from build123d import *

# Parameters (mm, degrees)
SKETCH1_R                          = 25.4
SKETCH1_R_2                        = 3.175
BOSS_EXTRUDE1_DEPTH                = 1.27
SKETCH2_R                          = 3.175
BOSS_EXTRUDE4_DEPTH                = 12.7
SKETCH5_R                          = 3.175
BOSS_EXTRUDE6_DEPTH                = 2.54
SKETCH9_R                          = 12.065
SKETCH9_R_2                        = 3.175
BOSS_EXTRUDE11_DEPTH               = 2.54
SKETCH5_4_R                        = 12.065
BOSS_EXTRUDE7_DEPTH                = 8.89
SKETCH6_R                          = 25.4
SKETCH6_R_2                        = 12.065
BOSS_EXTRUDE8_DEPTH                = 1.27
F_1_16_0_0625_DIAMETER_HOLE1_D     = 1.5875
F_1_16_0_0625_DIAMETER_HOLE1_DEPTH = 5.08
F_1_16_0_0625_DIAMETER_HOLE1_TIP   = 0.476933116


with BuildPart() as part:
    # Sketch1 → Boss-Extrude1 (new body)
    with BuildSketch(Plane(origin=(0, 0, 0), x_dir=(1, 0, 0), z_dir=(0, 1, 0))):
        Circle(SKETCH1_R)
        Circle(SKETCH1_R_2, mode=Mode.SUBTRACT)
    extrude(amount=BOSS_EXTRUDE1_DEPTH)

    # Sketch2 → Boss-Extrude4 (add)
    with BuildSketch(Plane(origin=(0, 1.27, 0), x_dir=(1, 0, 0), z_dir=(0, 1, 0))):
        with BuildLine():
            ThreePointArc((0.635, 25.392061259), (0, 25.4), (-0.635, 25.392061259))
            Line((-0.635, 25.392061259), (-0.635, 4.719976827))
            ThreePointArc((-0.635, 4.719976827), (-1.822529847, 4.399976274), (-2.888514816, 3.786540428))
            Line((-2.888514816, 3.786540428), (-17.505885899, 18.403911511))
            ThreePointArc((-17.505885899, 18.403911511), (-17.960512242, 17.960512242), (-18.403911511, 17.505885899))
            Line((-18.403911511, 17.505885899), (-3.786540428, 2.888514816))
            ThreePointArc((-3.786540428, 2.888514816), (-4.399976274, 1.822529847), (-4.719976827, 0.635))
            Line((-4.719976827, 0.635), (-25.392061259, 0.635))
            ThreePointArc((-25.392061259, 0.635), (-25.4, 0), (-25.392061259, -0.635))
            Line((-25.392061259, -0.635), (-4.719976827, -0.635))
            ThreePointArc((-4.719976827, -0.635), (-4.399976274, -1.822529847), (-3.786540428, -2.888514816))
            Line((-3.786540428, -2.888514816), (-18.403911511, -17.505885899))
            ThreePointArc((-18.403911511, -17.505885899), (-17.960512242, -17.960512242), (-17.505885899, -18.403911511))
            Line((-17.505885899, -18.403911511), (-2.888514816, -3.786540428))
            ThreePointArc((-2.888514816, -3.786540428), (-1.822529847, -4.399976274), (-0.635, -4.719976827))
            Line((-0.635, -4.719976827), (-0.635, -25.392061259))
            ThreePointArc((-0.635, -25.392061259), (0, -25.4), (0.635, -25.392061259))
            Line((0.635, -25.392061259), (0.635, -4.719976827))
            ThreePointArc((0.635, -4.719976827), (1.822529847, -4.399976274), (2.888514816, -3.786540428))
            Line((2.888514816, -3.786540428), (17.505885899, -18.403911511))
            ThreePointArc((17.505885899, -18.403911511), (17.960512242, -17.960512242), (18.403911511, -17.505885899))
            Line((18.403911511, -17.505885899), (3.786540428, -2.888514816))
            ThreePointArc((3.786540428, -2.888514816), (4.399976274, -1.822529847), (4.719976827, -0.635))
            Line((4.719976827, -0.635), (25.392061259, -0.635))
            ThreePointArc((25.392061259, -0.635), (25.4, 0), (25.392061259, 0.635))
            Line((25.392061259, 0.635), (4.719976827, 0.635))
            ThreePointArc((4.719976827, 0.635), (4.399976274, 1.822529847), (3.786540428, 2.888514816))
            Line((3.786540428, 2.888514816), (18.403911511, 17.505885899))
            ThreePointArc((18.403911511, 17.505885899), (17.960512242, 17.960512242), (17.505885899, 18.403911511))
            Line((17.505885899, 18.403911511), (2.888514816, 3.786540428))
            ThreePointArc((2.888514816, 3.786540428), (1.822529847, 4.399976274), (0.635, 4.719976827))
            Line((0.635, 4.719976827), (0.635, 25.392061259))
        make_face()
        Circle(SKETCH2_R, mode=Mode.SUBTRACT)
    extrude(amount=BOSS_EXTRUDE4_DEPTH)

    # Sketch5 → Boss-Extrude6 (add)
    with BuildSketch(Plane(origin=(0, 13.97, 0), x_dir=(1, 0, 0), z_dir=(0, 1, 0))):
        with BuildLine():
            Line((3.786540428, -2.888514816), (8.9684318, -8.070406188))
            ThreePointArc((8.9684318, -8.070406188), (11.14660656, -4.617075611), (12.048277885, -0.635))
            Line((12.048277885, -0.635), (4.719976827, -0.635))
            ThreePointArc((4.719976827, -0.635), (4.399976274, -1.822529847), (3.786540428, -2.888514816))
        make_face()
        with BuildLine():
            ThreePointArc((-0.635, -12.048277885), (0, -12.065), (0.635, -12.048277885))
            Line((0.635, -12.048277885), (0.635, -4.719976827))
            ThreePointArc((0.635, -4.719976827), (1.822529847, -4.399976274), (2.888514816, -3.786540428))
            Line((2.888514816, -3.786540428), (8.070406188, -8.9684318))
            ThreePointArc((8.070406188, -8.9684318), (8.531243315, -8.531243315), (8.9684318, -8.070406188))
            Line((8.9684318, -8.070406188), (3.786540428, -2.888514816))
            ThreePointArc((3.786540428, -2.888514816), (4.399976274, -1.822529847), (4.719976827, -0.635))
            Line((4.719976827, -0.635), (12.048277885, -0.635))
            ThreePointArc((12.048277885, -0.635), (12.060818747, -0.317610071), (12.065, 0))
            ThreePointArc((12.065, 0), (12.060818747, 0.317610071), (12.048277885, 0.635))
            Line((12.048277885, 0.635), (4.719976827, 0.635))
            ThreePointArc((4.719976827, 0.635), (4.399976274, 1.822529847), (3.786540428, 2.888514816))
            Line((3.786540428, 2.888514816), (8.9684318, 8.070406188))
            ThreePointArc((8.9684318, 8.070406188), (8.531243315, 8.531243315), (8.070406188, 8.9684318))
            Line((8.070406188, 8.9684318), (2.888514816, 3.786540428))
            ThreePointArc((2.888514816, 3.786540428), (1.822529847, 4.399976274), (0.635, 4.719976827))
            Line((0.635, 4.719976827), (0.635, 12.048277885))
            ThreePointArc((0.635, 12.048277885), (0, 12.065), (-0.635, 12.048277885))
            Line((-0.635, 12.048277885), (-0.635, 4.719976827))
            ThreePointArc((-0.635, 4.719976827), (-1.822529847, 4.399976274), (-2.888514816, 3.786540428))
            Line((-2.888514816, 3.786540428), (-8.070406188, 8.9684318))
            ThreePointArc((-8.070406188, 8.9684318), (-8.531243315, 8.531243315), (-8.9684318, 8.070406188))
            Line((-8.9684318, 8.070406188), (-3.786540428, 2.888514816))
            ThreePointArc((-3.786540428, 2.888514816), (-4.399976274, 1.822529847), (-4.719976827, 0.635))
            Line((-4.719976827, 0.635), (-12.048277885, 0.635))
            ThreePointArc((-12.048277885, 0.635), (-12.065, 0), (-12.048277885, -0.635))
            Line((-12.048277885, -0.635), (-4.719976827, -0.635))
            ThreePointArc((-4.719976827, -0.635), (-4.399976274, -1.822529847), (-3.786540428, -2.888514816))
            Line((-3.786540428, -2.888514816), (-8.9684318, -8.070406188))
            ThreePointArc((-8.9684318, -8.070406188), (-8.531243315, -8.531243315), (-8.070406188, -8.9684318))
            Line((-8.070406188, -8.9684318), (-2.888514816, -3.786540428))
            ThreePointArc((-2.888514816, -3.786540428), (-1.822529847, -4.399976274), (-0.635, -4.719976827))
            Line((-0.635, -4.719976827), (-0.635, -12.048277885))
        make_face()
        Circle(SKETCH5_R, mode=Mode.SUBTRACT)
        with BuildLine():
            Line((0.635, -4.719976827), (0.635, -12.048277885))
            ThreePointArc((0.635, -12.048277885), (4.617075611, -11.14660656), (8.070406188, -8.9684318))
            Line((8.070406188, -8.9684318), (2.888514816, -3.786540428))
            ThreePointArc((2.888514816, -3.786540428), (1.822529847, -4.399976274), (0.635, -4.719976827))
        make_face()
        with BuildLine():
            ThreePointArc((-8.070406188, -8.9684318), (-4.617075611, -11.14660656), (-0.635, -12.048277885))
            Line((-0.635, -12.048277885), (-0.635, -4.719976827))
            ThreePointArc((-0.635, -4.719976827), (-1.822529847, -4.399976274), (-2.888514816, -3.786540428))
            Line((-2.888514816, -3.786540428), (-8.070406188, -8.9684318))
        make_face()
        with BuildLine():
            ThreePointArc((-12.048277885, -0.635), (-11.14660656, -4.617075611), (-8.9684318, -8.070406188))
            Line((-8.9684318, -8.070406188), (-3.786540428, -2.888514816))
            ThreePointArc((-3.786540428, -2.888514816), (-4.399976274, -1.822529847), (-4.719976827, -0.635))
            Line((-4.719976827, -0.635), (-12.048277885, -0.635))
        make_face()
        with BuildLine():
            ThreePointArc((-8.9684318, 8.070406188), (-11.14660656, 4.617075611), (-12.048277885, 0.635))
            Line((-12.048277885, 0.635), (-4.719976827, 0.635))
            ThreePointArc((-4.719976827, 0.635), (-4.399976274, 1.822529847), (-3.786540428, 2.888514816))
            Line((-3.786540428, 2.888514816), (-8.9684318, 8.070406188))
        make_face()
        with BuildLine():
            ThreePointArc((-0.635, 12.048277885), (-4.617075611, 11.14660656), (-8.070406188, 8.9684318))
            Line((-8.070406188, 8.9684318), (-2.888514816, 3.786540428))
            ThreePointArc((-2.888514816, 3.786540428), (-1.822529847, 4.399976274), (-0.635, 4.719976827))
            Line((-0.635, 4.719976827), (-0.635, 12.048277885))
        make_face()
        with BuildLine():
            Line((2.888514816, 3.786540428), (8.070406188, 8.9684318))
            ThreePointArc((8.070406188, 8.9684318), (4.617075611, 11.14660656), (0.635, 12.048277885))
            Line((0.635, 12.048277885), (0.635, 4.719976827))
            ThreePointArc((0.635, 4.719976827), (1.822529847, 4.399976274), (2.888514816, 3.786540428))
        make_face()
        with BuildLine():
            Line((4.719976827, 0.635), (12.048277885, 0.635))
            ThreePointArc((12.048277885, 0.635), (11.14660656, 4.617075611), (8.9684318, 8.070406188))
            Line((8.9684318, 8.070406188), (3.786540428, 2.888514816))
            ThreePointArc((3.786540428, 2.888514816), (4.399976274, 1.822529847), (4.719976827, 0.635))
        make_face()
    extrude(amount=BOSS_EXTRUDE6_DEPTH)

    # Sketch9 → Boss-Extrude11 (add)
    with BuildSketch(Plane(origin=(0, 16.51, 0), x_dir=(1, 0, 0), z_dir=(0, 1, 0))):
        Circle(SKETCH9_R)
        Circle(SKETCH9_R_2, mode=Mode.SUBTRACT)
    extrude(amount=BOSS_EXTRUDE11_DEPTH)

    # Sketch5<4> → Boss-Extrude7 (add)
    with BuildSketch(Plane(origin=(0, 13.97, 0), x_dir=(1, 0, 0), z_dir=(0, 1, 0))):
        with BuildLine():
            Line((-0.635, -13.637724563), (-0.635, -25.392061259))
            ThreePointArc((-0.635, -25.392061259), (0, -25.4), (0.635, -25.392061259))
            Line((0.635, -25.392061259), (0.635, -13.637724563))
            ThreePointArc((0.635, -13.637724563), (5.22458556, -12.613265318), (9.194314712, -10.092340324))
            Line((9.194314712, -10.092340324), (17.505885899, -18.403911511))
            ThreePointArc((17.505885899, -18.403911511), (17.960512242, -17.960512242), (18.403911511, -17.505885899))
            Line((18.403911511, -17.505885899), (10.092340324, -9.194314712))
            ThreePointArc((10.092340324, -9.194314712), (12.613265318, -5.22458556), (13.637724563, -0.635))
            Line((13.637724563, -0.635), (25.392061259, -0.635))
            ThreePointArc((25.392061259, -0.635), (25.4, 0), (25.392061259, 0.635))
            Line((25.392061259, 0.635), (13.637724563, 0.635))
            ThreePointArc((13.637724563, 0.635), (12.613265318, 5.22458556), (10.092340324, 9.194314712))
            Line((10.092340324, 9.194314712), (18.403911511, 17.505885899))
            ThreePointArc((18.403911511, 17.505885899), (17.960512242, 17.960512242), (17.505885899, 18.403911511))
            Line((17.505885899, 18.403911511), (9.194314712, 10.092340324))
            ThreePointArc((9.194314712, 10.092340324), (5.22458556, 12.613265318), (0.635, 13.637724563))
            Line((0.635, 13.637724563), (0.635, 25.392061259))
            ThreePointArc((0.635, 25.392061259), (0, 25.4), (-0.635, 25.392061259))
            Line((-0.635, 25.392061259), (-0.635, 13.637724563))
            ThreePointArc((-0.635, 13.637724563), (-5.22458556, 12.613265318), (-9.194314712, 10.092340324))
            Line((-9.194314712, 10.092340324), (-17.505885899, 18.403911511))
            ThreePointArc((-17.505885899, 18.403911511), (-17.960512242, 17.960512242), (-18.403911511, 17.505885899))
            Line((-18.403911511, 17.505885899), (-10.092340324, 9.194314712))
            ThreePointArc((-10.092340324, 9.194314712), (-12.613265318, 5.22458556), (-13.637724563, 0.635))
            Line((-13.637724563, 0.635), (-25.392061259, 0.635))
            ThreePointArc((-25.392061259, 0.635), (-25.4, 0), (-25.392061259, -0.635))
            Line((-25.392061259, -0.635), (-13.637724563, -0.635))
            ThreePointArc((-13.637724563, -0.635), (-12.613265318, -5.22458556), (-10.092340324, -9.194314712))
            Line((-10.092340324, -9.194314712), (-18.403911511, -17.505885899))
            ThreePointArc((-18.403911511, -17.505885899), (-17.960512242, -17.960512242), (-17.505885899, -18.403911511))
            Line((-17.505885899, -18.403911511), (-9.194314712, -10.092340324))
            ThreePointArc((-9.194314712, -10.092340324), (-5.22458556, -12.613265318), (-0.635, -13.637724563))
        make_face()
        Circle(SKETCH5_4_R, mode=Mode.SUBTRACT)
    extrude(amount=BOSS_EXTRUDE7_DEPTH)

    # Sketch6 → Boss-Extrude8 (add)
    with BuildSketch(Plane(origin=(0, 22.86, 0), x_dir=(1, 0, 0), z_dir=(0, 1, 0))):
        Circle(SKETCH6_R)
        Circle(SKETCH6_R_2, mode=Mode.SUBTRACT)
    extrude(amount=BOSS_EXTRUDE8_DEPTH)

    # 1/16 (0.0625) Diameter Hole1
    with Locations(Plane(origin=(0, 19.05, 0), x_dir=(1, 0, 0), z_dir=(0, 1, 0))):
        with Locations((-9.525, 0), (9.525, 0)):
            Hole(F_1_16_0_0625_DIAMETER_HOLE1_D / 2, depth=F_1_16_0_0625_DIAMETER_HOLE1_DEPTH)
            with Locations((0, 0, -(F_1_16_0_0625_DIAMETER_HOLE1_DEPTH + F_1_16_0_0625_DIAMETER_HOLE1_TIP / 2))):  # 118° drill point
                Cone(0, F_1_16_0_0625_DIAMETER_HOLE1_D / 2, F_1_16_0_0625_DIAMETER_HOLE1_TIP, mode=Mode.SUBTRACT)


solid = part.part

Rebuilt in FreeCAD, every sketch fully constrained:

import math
import FreeCAD as App
import Part
import Sketcher

V = App.Vector
Q = App.Units.Quantity

doc = App.newDocument("Part")
params = doc.addObject("Spreadsheet::Sheet", "Params")
for row, (alias, value) in enumerate([
    ("sketch1_diameter", "2 in"),
    ("sketch1_diameter2", "0.25 in"),
    ("pad1_length", "0.05 in"),
    ("sketch2_radius", "1 in"),
    ("sketch2_radius2", "1.0000001 in"),
    ("sketch2_diameter", "0.25 in"),
    ("sketch2_radius3", "0.1875 in"),
    ("pad2_length", "0.5 in"),
    ("sketch3_diameter", "0.25 in"),
    ("sketch3_radius", "0.475 in"),
    ("pad3_length", "0.1 in"),
    ("sketch4_diameter", "0.95 in"),
    ("sketch4_diameter2", "0.25 in"),
    ("pad4_length", "0.1 in"),
    ("sketch5_radius", "1 in"),
    ("sketch5_radius2", "1.0000001 in"),
    ("sketch5_diameter", "0.95 in"),
    ("pad5_length", "0.35 in"),
    ("sketch6_diameter", "2 in"),
    ("sketch6_diameter2", "0.95 in"),
    ("pad6_length", "0.05 in"),
    ("sketch7_diameter", "0.0625 in"),
    ("hole_diameter", "0.0625 in"),
    ("hole_depth", "0.2 in"),
], start=1):
    params.set(f"A{row}", alias)
    params.set(f"B{row}", "=" + value)
    params.setAlias(f"B{row}", alias)

body = doc.addObject("PartDesign::Body", "Body")

# Sketch on XZ plane
sketch1 = body.newObject("Sketcher::SketchObject", "Sketch")
sketch1.AttachmentSupport = (doc.getObject("XZ_Plane"), [""])
sketch1.MapMode = "FlatFace"
sketch1.addGeometry([
    Part.Circle(V(0, 0, 0), V(0, 0, 1), 25.4),
    Part.Circle(V(0, 0, 0), V(0, 0, 1), 3.175),
], False)
sketch1.addConstraint([
    Sketcher.Constraint("Coincident", 0, 3, -1, 1),
    Sketcher.Constraint("Coincident", 1, 3, -1, 1),
    Sketcher.Constraint("Diameter", 0, Q("2 in")),
    Sketcher.Constraint("Diameter", 1, Q("0.25 in")),
])
sketch1.setExpression("Constraints[2]", "Params.sketch1_diameter")
sketch1.setExpression("Constraints[3]", "Params.sketch1_diameter2")
pad1 = body.newObject("PartDesign::Pad", "Pad")
pad1.Profile = sketch1
pad1.setExpression("Length", "Params.pad1_length")
pad1.Reversed = True

# Sketch on XZ plane
sketch2 = body.newObject("Sketcher::SketchObject", "Sketch001")
sketch2.AttachmentSupport = (doc.getObject("XZ_Plane"), [""])
sketch2.MapMode = "FlatFace"
sketch2.AttachmentOffset = App.Placement(V(0, 0, -0.05 * 25.4), App.Rotation())
sketch2.addGeometry([
    Part.ArcOfCircle(Part.Circle(V(0, -0.000001, 0), V(0, 0, 1), 25.399999), math.radians(-91.432544), math.radians(-88.567456)),  # 0
    Part.LineSegment(V(-0.635, -25.392061, 0), V(-0.635, -4.719977, 0)),  # 1
    Part.ArcOfCircle(Part.Circle(V(0, 0, 0), V(0, 0, 1), 4.7625), math.radians(-127.337744), math.radians(-97.662256)),  # 2
    Part.LineSegment(V(-2.888515, -3.78654, 0), V(-17.505886, -18.403912, 0)),  # 3
    Part.ArcOfCircle(Part.Circle(V(0.000001, 0.000001, 0), V(0, 0, 1), 25.400001), math.radians(-136.432544), math.radians(-133.567456)),  # 4
    Part.LineSegment(V(-18.403912, -17.505886, 0), V(-3.78654, -2.888515, 0)),  # 5
    Part.ArcOfCircle(Part.Circle(V(0, 0, 0), V(0, 0, 1), 4.7625), math.radians(-172.337744), math.radians(-142.662256)),  # 6
    Part.LineSegment(V(-4.719977, -0.635, 0), V(-25.392061, -0.635, 0)),  # 7
    Part.ArcOfCircle(Part.Circle(V(-0.000001, 0, 0), V(0, 0, 1), 25.399999), math.radians(178.567456), math.radians(181.432544)),  # 8
    Part.LineSegment(V(-25.392061, 0.635, 0), V(-4.719977, 0.635, 0)),  # 9
    Part.ArcOfCircle(Part.Circle(V(0, 0, 0), V(0, 0, 1), 4.7625), math.radians(142.662256), math.radians(172.337744)),  # 10
    Part.LineSegment(V(-3.78654, 2.888515, 0), V(-18.403912, 17.505886, 0)),  # 11
    Part.ArcOfCircle(Part.Circle(V(0.000001, -0.000001, 0), V(0, 0, 1), 25.400001), math.radians(133.567456), math.radians(136.432544)),  # 12
    Part.LineSegment(V(-17.505886, 18.403912, 0), V(-2.888515, 3.78654, 0)),  # 13
    Part.ArcOfCircle(Part.Circle(V(0, 0, 0), V(0, 0, 1), 4.7625), math.radians(97.662256), math.radians(127.337744)),  # 14
    Part.LineSegment(V(-0.635, 4.719977, 0), V(-0.635, 25.392061, 0)),  # 15
    Part.ArcOfCircle(Part.Circle(V(0, 0.000001, 0), V(0, 0, 1), 25.399999), math.radians(88.567456), math.radians(91.432544)),  # 16
    Part.LineSegment(V(0.635, 25.392061, 0), V(0.635, 4.719977, 0)),  # 17
    Part.ArcOfCircle(Part.Circle(V(0, 0, 0), V(0, 0, 1), 4.7625), math.radians(52.662256), math.radians(82.337744)),  # 18
    Part.LineSegment(V(2.888515, 3.78654, 0), V(17.505886, 18.403912, 0)),  # 19
    Part.ArcOfCircle(Part.Circle(V(-0.000001, -0.000001, 0), V(0, 0, 1), 25.400001), math.radians(43.567456), math.radians(46.432544)),  # 20
    Part.LineSegment(V(18.403912, 17.505886, 0), V(3.78654, 2.888515, 0)),  # 21
    Part.ArcOfCircle(Part.Circle(V(0, 0, 0), V(0, 0, 1), 4.7625), math.radians(7.662256), math.radians(37.337744)),  # 22
    Part.LineSegment(V(4.719977, 0.635, 0), V(25.392061, 0.635, 0)),  # 23
    Part.ArcOfCircle(Part.Circle(V(0.000001, 0, 0), V(0, 0, 1), 25.399999), math.radians(-1.432544), math.radians(1.432544)),  # 24
    Part.LineSegment(V(25.392061, -0.635, 0), V(4.719977, -0.635, 0)),  # 25
    Part.ArcOfCircle(Part.Circle(V(0, 0, 0), V(0, 0, 1), 4.7625), math.radians(-37.337744), math.radians(-7.662256)),  # 26
    Part.LineSegment(V(3.78654, -2.888515, 0), V(18.403912, -17.505886, 0)),  # 27
    Part.ArcOfCircle(Part.Circle(V(-0.000001, 0.000001, 0), V(0, 0, 1), 25.400001), math.radians(-46.432544), math.radians(-43.567456)),  # 28
    Part.LineSegment(V(17.505886, -18.403912, 0), V(2.888515, -3.78654, 0)),  # 29
    Part.ArcOfCircle(Part.Circle(V(0, 0, 0), V(0, 0, 1), 4.7625), math.radians(-82.337744), math.radians(-52.662256)),  # 30
    Part.LineSegment(V(0.635, -4.719977, 0), V(0.635, -25.392061, 0)),  # 31
    Part.Circle(V(0, 0, 0), V(0, 0, 1), 3.175),  # 32
], False)
sketch2.addConstraint([
    Sketcher.Constraint("Coincident", 0, 1, 1, 1),
    Sketcher.Constraint("Coincident", 1, 2, 2, 2),
    Sketcher.Constraint("Coincident", 2, 1, 3, 1),
    Sketcher.Constraint("Coincident", 3, 2, 4, 2),
    Sketcher.Constraint("Coincident", 4, 1, 5, 1),
    Sketcher.Constraint("Coincident", 5, 2, 6, 2),
    Sketcher.Constraint("Coincident", 6, 1, 7, 1),
    Sketcher.Constraint("Coincident", 7, 2, 8, 2),
    Sketcher.Constraint("Coincident", 8, 1, 9, 1),
    Sketcher.Constraint("Coincident", 9, 2, 10, 2),
    Sketcher.Constraint("Coincident", 10, 1, 11, 1),
    Sketcher.Constraint("Coincident", 11, 2, 12, 2),
    Sketcher.Constraint("Coincident", 12, 1, 13, 1),
    Sketcher.Constraint("Coincident", 13, 2, 14, 2),
    Sketcher.Constraint("Coincident", 14, 1, 15, 1),
    Sketcher.Constraint("Coincident", 15, 2, 16, 2),
    Sketcher.Constraint("Coincident", 16, 1, 17, 1),
    Sketcher.Constraint("Coincident", 17, 2, 18, 2),
    Sketcher.Constraint("Coincident", 18, 1, 19, 1),
    Sketcher.Constraint("Coincident", 19, 2, 20, 2),
    Sketcher.Constraint("Coincident", 20, 1, 21, 1),
    Sketcher.Constraint("Coincident", 21, 2, 22, 2),
    Sketcher.Constraint("Coincident", 22, 1, 23, 1),
    Sketcher.Constraint("Coincident", 23, 2, 24, 2),
    Sketcher.Constraint("Coincident", 24, 1, 25, 1),
    Sketcher.Constraint("Coincident", 25, 2, 26, 2),
    Sketcher.Constraint("Coincident", 26, 1, 27, 1),
    Sketcher.Constraint("Coincident", 27, 2, 28, 2),
    Sketcher.Constraint("Coincident", 28, 1, 29, 1),
    Sketcher.Constraint("Coincident", 29, 2, 30, 2),
    Sketcher.Constraint("Coincident", 30, 1, 31, 1),
    Sketcher.Constraint("Coincident", 31, 2, 0, 2),
    Sketcher.Constraint("Vertical", 1),
    Sketcher.Constraint("Horizontal", 7),
    Sketcher.Constraint("Horizontal", 9),
    Sketcher.Constraint("Vertical", 15),
    Sketcher.Constraint("Vertical", 17),
    Sketcher.Constraint("Horizontal", 23),
    Sketcher.Constraint("Horizontal", 25),
    Sketcher.Constraint("Vertical", 31),
    Sketcher.Constraint("Coincident", 0, 3, -1, 1),
    Sketcher.Constraint("Coincident", 2, 3, -1, 1),
    Sketcher.Constraint("Coincident", 4, 3, -1, 1),
    Sketcher.Constraint("Coincident", 6, 3, -1, 1),
    Sketcher.Constraint("Coincident", 8, 3, -1, 1),
    Sketcher.Constraint("Coincident", 10, 3, -1, 1),
    Sketcher.Constraint("Coincident", 12, 3, -1, 1),
    Sketcher.Constraint("Coincident", 14, 3, -1, 1),
    Sketcher.Constraint("Coincident", 16, 3, -1, 1),
    Sketcher.Constraint("Coincident", 18, 3, -1, 1),
    Sketcher.Constraint("Coincident", 20, 3, -1, 1),
    Sketcher.Constraint("Coincident", 22, 3, -1, 1),
    Sketcher.Constraint("Coincident", 24, 3, -1, 1),
    Sketcher.Constraint("Coincident", 26, 3, -1, 1),
    Sketcher.Constraint("Coincident", 28, 3, -1, 1),
    Sketcher.Constraint("Coincident", 30, 3, -1, 1),
    Sketcher.Constraint("Coincident", 32, 3, -1, 1),
    Sketcher.Constraint("Equal", 2, 6),
    Sketcher.Constraint("Equal", 0, 8),
    Sketcher.Constraint("Equal", 6, 10),
    Sketcher.Constraint("Equal", 4, 12),
    Sketcher.Constraint("Equal", 10, 14),
    Sketcher.Constraint("Equal", 8, 16),
    Sketcher.Constraint("Equal", 14, 18),
    Sketcher.Constraint("Equal", 12, 20),
    Sketcher.Constraint("Equal", 18, 22),
    Sketcher.Constraint("Equal", 16, 24),
    Sketcher.Constraint("Equal", 22, 26),
    Sketcher.Constraint("Equal", 20, 28),
    Sketcher.Constraint("Equal", 26, 30),
    Sketcher.Constraint("Parallel", 3, 5),
    Sketcher.Constraint("Perpendicular", 5, 11),
    Sketcher.Constraint("Parallel", 11, 13),
    Sketcher.Constraint("Perpendicular", 13, 19),
    Sketcher.Constraint("Parallel", 19, 21),
    Sketcher.Constraint("Perpendicular", 21, 27),
    Sketcher.Constraint("Parallel", 27, 29),
    Sketcher.Constraint("Horizontal", 15, 2, 16, 1),
    Sketcher.Constraint("Horizontal", 13, 2, 18, 1),
    Sketcher.Constraint("Horizontal", 12, 1, 19, 2),
    Sketcher.Constraint("Horizontal", 11, 2, 20, 1),
    Sketcher.Constraint("Horizontal", 9, 2, 22, 1),
    Sketcher.Constraint("Horizontal", 7, 2, 24, 1),
    Sketcher.Constraint("Horizontal", 5, 2, 26, 1),
    Sketcher.Constraint("Horizontal", 3, 2, 28, 1),
    Sketcher.Constraint("Horizontal", 1, 2, 30, 1),
    Sketcher.Constraint("Vertical", 7, 2, 8, 1),
    Sketcher.Constraint("Vertical", 5, 2, 10, 1),
    Sketcher.Constraint("Vertical", 3, 2, 12, 1),
    Sketcher.Constraint("Vertical", 1, 2, 14, 1),
    Sketcher.Constraint("Equal", 25, 1),
    Sketcher.Constraint("Equal", 3, 5),
    Sketcher.Constraint("Radius", 0, Q("1 in")),
    Sketcher.Constraint("Radius", 4, Q("1.0000001 in")),
    Sketcher.Constraint("Diameter", 32, Q("0.25 in")),
    Sketcher.Constraint("Radius", 2, Q("0.1875 in")),
    Sketcher.Constraint("DistanceY", 7, 2, 8, 1, Q("0.05 in")),
    Sketcher.Constraint("DistanceY", 2, 1, -1, 1, 3.78654),
])
sketch2.setExpression("Constraints[92]", "Params.sketch2_radius")
sketch2.setExpression("Constraints[93]", "Params.sketch2_radius2")
sketch2.setExpression("Constraints[94]", "Params.sketch2_diameter")
sketch2.setExpression("Constraints[95]", "Params.sketch2_radius3")
pad2 = body.newObject("PartDesign::Pad", "Pad001")
pad2.Profile = sketch2
pad2.setExpression("Length", "Params.pad2_length")
pad2.Reversed = True

# Sketch on XZ plane
sketch3 = body.newObject("Sketcher::SketchObject", "Sketch002")
sketch3.AttachmentSupport = (doc.getObject("XZ_Plane"), [""])
sketch3.MapMode = "FlatFace"
sketch3.AttachmentOffset = App.Placement(V(0, 0, -0.55 * 25.4), App.Rotation())
sketch3.addGeometry([
    Part.ArcOfCircle(Part.Circle(V(0, 0, 0), V(0, 0, 1), 12.065), math.radians(3.016961), math.radians(41.983039)),  # 0
    Part.ArcOfCircle(Part.Circle(V(0.000001, 0, 0), V(0, 0, 1), 12.064999), math.radians(0), math.radians(3.016961)),  # 1
    Part.ArcOfCircle(Part.Circle(V(0.000001, 0, 0), V(0, 0, 1), 12.064999), math.radians(-3.016961), math.radians(0)),  # 2
    Part.ArcOfCircle(Part.Circle(V(0, 0, 0), V(0, 0, 1), 12.065), math.radians(-41.983039), math.radians(-3.016961)),  # 3
    Part.ArcOfCircle(Part.Circle(V(0, 0, 0), V(0, 0, 1), 12.065), math.radians(-48.016961), math.radians(-41.983039)),  # 4
    Part.ArcOfCircle(Part.Circle(V(0, 0, 0), V(0, 0, 1), 12.065), math.radians(-86.983039), math.radians(-48.016961)),  # 5
    Part.ArcOfCircle(Part.Circle(V(0, 0, 0), V(0, 0, 1), 12.065), math.radians(-93.016961), math.radians(-86.983039)),  # 6
    Part.ArcOfCircle(Part.Circle(V(0, 0, 0), V(0, 0, 1), 12.065), math.radians(-131.983039), math.radians(-93.016961)),  # 7
    Part.ArcOfCircle(Part.Circle(V(0, 0, 0), V(0, 0, 1), 12.065), math.radians(-138.016961), math.radians(-131.983039)),  # 8
    Part.ArcOfCircle(Part.Circle(V(0, 0, 0), V(0, 0, 1), 12.065), math.radians(-176.983039), math.radians(-138.016961)),  # 9
    Part.ArcOfCircle(Part.Circle(V(0, 0, 0), V(0, 0, 1), 12.065), math.radians(176.983039), math.radians(183.016961)),  # 10
    Part.ArcOfCircle(Part.Circle(V(0, 0, 0), V(0, 0, 1), 12.065), math.radians(138.016961), math.radians(176.983039)),  # 11
    Part.ArcOfCircle(Part.Circle(V(0, 0, 0), V(0, 0, 1), 12.065), math.radians(131.983039), math.radians(138.016961)),  # 12
    Part.ArcOfCircle(Part.Circle(V(0, 0, 0), V(0, 0, 1), 12.065), math.radians(93.016961), math.radians(131.983039)),  # 13
    Part.ArcOfCircle(Part.Circle(V(0, 0, 0), V(0, 0, 1), 12.065), math.radians(86.983039), math.radians(93.016961)),  # 14
    Part.ArcOfCircle(Part.Circle(V(0, 0, 0), V(0, 0, 1), 12.065), math.radians(48.016961), math.radians(86.983039)),  # 15
    Part.ArcOfCircle(Part.Circle(V(0, 0, 0), V(0, 0, 1), 12.065), math.radians(41.983039), math.radians(48.016961)),  # 16
    Part.Circle(V(0, 0, 0), V(0, 0, 1), 3.175),  # 17
], False)
sketch3.addConstraint([
    Sketcher.Constraint("Tangent", 0, 1, 1, 2),
    Sketcher.Constraint("Tangent", 1, 1, 2, 2),
    Sketcher.Constraint("Tangent", 2, 1, 3, 2),
    Sketcher.Constraint("Tangent", 3, 1, 4, 2),
    Sketcher.Constraint("Tangent", 4, 1, 5, 2),
    Sketcher.Constraint("Tangent", 5, 1, 6, 2),
    Sketcher.Constraint("Tangent", 6, 1, 7, 2),
    Sketcher.Constraint("Tangent", 7, 1, 8, 2),
    Sketcher.Constraint("Tangent", 8, 1, 9, 2),
    Sketcher.Constraint("Tangent", 9, 1, 10, 2),
    Sketcher.Constraint("Tangent", 10, 1, 11, 2),
    Sketcher.Constraint("Tangent", 11, 1, 12, 2),
    Sketcher.Constraint("Tangent", 12, 1, 13, 2),
    Sketcher.Constraint("Tangent", 13, 1, 14, 2),
    Sketcher.Constraint("Tangent", 14, 1, 15, 2),
    Sketcher.Constraint("Tangent", 15, 1, 16, 2),
    Sketcher.Constraint("Tangent", 16, 1, 0, 2),
    Sketcher.Constraint("Coincident", 0, 3, -1, 1),
    Sketcher.Constraint("Coincident", 2, 3, -1, 1),
    Sketcher.Constraint("Coincident", 4, 3, -1, 1),
    Sketcher.Constraint("Coincident", 6, 3, -1, 1),
    Sketcher.Constraint("Coincident", 8, 3, -1, 1),
    Sketcher.Constraint("Coincident", 10, 3, -1, 1),
    Sketcher.Constraint("Coincident", 12, 3, -1, 1),
    Sketcher.Constraint("Coincident", 14, 3, -1, 1),
    Sketcher.Constraint("Coincident", 17, 3, -1, 1),
    Sketcher.Constraint("PointOnObject", 1, 1, -1),
    Sketcher.Constraint("Horizontal", 5, 1, 6, 1),
    Sketcher.Constraint("Horizontal", 4, 1, 7, 1),
    Sketcher.Constraint("Horizontal", 3, 1, 8, 1),
    Sketcher.Constraint("Horizontal", 2, 1, 9, 1),
    Sketcher.Constraint("Horizontal", 0, 1, 10, 1),
    Sketcher.Constraint("Horizontal", 13, 1, 14, 1),
    Sketcher.Constraint("Horizontal", 12, 1, 15, 1),
    Sketcher.Constraint("Horizontal", 11, 1, 16, 1),
    Sketcher.Constraint("Vertical", 0, 1, 2, 1),
    Sketcher.Constraint("Vertical", 8, 1, 11, 1),
    Sketcher.Constraint("Vertical", 7, 1, 12, 1),
    Sketcher.Constraint("Vertical", 6, 1, 13, 1),
    Sketcher.Constraint("Diameter", 17, Q("0.25 in")),
    Sketcher.Constraint("Radius", 0, Q("0.475 in")),
    Sketcher.Constraint("DistanceY", 2, 1, 0, 1, Q("0.05 in")),
    Sketcher.Constraint("DistanceX", 6, 1, 5, 1, Q("0.05 in")),
    Sketcher.Constraint("DistanceX", -1, 1, 3, 1, 8.968432),
    Sketcher.Constraint("DistanceY", 4, 1, -1, 1, 8.968432),
])
sketch3.setExpression("Constraints[39]", "Params.sketch3_diameter")
sketch3.setExpression("Constraints[40]", "Params.sketch3_radius")
pad3 = body.newObject("PartDesign::Pad", "Pad002")
pad3.Profile = sketch3
pad3.setExpression("Length", "Params.pad3_length")
pad3.Reversed = True

# Sketch on XZ plane
sketch4 = body.newObject("Sketcher::SketchObject", "Sketch003")
sketch4.AttachmentSupport = (doc.getObject("XZ_Plane"), [""])
sketch4.MapMode = "FlatFace"
sketch4.AttachmentOffset = App.Placement(V(0, 0, -0.65 * 25.4), App.Rotation())
sketch4.addGeometry([
    Part.Circle(V(0, 0, 0), V(0, 0, 1), 12.065),
    Part.Circle(V(0, 0, 0), V(0, 0, 1), 3.175),
], False)
sketch4.addConstraint([
    Sketcher.Constraint("Coincident", 0, 3, -1, 1),
    Sketcher.Constraint("Coincident", 1, 3, -1, 1),
    Sketcher.Constraint("Diameter", 0, Q("0.95 in")),
    Sketcher.Constraint("Diameter", 1, Q("0.25 in")),
])
sketch4.setExpression("Constraints[2]", "Params.sketch4_diameter")
sketch4.setExpression("Constraints[3]", "Params.sketch4_diameter2")
pad4 = body.newObject("PartDesign::Pad", "Pad003")
pad4.Profile = sketch4
pad4.setExpression("Length", "Params.pad4_length")
pad4.Reversed = True

# Sketch on XZ plane
sketch5 = body.newObject("Sketcher::SketchObject", "Sketch004")
sketch5.AttachmentSupport = (doc.getObject("XZ_Plane"), [""])
sketch5.MapMode = "FlatFace"
sketch5.AttachmentOffset = App.Placement(V(0, 0, -0.55 * 25.4), App.Rotation())
sketch5.addGeometry([
    Part.LineSegment(V(-0.635, 13.637725, 0), V(-0.635, 25.392061, 0)),  # 0
    Part.ArcOfCircle(Part.Circle(V(0, 0.000001, 0), V(0, 0, 1), 25.399999), math.radians(88.567456), math.radians(91.432544)),  # 1
    Part.LineSegment(V(0.635, 25.392061, 0), V(0.635, 13.637725, 0)),  # 2
    Part.ArcOfCircle(Part.Circle(V(0, 0, 0), V(0, 0, 1), 13.6525), math.radians(47.665882), math.radians(87.334118)),  # 3
    Part.LineSegment(V(9.194315, 10.09234, 0), V(17.505886, 18.403912, 0)),  # 4
    Part.ArcOfCircle(Part.Circle(V(-0.000001, -0.000001, 0), V(0, 0, 1), 25.400001), math.radians(43.567456), math.radians(46.432544)),  # 5
    Part.LineSegment(V(18.403912, 17.505886, 0), V(10.09234, 9.194315, 0)),  # 6
    Part.ArcOfCircle(Part.Circle(V(0, 0, 0), V(0, 0, 1), 13.6525), math.radians(2.665882), math.radians(42.334118)),  # 7
    Part.LineSegment(V(13.637725, 0.635, 0), V(25.392061, 0.635, 0)),  # 8
    Part.ArcOfCircle(Part.Circle(V(0.000001, 0, 0), V(0, 0, 1), 25.399999), math.radians(-1.432544), math.radians(1.432544)),  # 9
    Part.LineSegment(V(25.392061, -0.635, 0), V(13.637725, -0.635, 0)),  # 10
    Part.ArcOfCircle(Part.Circle(V(0, 0, 0), V(0, 0, 1), 13.6525), math.radians(-42.334118), math.radians(-2.665882)),  # 11
    Part.LineSegment(V(10.09234, -9.194315, 0), V(18.403912, -17.505886, 0)),  # 12
    Part.ArcOfCircle(Part.Circle(V(-0.000001, 0.000001, 0), V(0, 0, 1), 25.400001), math.radians(-46.432544), math.radians(-43.567456)),  # 13
    Part.LineSegment(V(17.505886, -18.403912, 0), V(9.194315, -10.09234, 0)),  # 14
    Part.ArcOfCircle(Part.Circle(V(0, 0, 0), V(0, 0, 1), 13.6525), math.radians(-87.334118), math.radians(-47.665882)),  # 15
    Part.LineSegment(V(0.635, -13.637725, 0), V(0.635, -25.392061, 0)),  # 16
    Part.ArcOfCircle(Part.Circle(V(0, -0.000001, 0), V(0, 0, 1), 25.399999), math.radians(-91.432544), math.radians(-88.567456)),  # 17
    Part.LineSegment(V(-0.635, -25.392061, 0), V(-0.635, -13.637725, 0)),  # 18
    Part.ArcOfCircle(Part.Circle(V(0, 0, 0), V(0, 0, 1), 13.6525), math.radians(-132.334118), math.radians(-92.665882)),  # 19
    Part.LineSegment(V(-9.194315, -10.09234, 0), V(-17.505886, -18.403912, 0)),  # 20
    Part.ArcOfCircle(Part.Circle(V(0.000001, 0.000001, 0), V(0, 0, 1), 25.400001), math.radians(-136.432544), math.radians(-133.567456)),  # 21
    Part.LineSegment(V(-18.403912, -17.505886, 0), V(-10.09234, -9.194315, 0)),  # 22
    Part.ArcOfCircle(Part.Circle(V(0, 0, 0), V(0, 0, 1), 13.6525), math.radians(-177.334118), math.radians(-137.665882)),  # 23
    Part.LineSegment(V(-13.637725, -0.635, 0), V(-25.392061, -0.635, 0)),  # 24
    Part.ArcOfCircle(Part.Circle(V(-0.000001, 0, 0), V(0, 0, 1), 25.399999), math.radians(178.567456), math.radians(181.432544)),  # 25
    Part.LineSegment(V(-25.392061, 0.635, 0), V(-13.637725, 0.635, 0)),  # 26
    Part.ArcOfCircle(Part.Circle(V(0, 0, 0), V(0, 0, 1), 13.6525), math.radians(137.665882), math.radians(177.334118)),  # 27
    Part.LineSegment(V(-10.09234, 9.194315, 0), V(-18.403912, 17.505886, 0)),  # 28
    Part.ArcOfCircle(Part.Circle(V(0.000001, -0.000001, 0), V(0, 0, 1), 25.400001), math.radians(133.567456), math.radians(136.432544)),  # 29
    Part.LineSegment(V(-17.505886, 18.403912, 0), V(-9.194315, 10.09234, 0)),  # 30
    Part.ArcOfCircle(Part.Circle(V(0, 0, 0), V(0, 0, 1), 13.6525), math.radians(92.665882), math.radians(132.334118)),  # 31
    Part.Circle(V(0, 0, 0), V(0, 0, 1), 12.065),  # 32
], False)
sketch5.addConstraint([
    Sketcher.Constraint("Coincident", 0, 2, 1, 2),
    Sketcher.Constraint("Coincident", 1, 1, 2, 1),
    Sketcher.Constraint("Coincident", 2, 2, 3, 2),
    Sketcher.Constraint("Coincident", 3, 1, 4, 1),
    Sketcher.Constraint("Coincident", 4, 2, 5, 2),
    Sketcher.Constraint("Coincident", 5, 1, 6, 1),
    Sketcher.Constraint("Coincident", 6, 2, 7, 2),
    Sketcher.Constraint("Coincident", 7, 1, 8, 1),
    Sketcher.Constraint("Coincident", 8, 2, 9, 2),
    Sketcher.Constraint("Coincident", 9, 1, 10, 1),
    Sketcher.Constraint("Coincident", 10, 2, 11, 2),
    Sketcher.Constraint("Coincident", 11, 1, 12, 1),
    Sketcher.Constraint("Coincident", 12, 2, 13, 2),
    Sketcher.Constraint("Coincident", 13, 1, 14, 1),
    Sketcher.Constraint("Coincident", 14, 2, 15, 2),
    Sketcher.Constraint("Coincident", 15, 1, 16, 1),
    Sketcher.Constraint("Coincident", 16, 2, 17, 2),
    Sketcher.Constraint("Coincident", 17, 1, 18, 1),
    Sketcher.Constraint("Coincident", 18, 2, 19, 2),
    Sketcher.Constraint("Coincident", 19, 1, 20, 1),
    Sketcher.Constraint("Coincident", 20, 2, 21, 2),
    Sketcher.Constraint("Coincident", 21, 1, 22, 1),
    Sketcher.Constraint("Coincident", 22, 2, 23, 2),
    Sketcher.Constraint("Coincident", 23, 1, 24, 1),
    Sketcher.Constraint("Coincident", 24, 2, 25, 2),
    Sketcher.Constraint("Coincident", 25, 1, 26, 1),
    Sketcher.Constraint("Coincident", 26, 2, 27, 2),
    Sketcher.Constraint("Coincident", 27, 1, 28, 1),
    Sketcher.Constraint("Coincident", 28, 2, 29, 2),
    Sketcher.Constraint("Coincident", 29, 1, 30, 1),
    Sketcher.Constraint("Coincident", 30, 2, 31, 2),
    Sketcher.Constraint("Coincident", 31, 1, 0, 1),
    Sketcher.Constraint("Vertical", 0),
    Sketcher.Constraint("Vertical", 2),
    Sketcher.Constraint("Horizontal", 8),
    Sketcher.Constraint("Horizontal", 10),
    Sketcher.Constraint("Vertical", 16),
    Sketcher.Constraint("Vertical", 18),
    Sketcher.Constraint("Horizontal", 24),
    Sketcher.Constraint("Horizontal", 26),
    Sketcher.Constraint("Coincident", 1, 3, -1, 1),
    Sketcher.Constraint("Coincident", 3, 3, -1, 1),
    Sketcher.Constraint("Coincident", 5, 3, -1, 1),
    Sketcher.Constraint("Coincident", 7, 3, -1, 1),
    Sketcher.Constraint("Coincident", 9, 3, -1, 1),
    Sketcher.Constraint("Coincident", 11, 3, -1, 1),
    Sketcher.Constraint("Coincident", 13, 3, -1, 1),
    Sketcher.Constraint("Coincident", 15, 3, -1, 1),
    Sketcher.Constraint("Coincident", 17, 3, -1, 1),
    Sketcher.Constraint("Coincident", 19, 3, -1, 1),
    Sketcher.Constraint("Coincident", 21, 3, -1, 1),
    Sketcher.Constraint("Coincident", 23, 3, -1, 1),
    Sketcher.Constraint("Coincident", 25, 3, -1, 1),
    Sketcher.Constraint("Coincident", 27, 3, -1, 1),
    Sketcher.Constraint("Coincident", 29, 3, -1, 1),
    Sketcher.Constraint("Coincident", 31, 3, -1, 1),
    Sketcher.Constraint("Coincident", 32, 3, -1, 1),
    Sketcher.Constraint("Equal", 3, 7),
    Sketcher.Constraint("Equal", 1, 9),
    Sketcher.Constraint("Equal", 7, 11),
    Sketcher.Constraint("Equal", 5, 13),
    Sketcher.Constraint("Equal", 11, 15),
    Sketcher.Constraint("Equal", 9, 17),
    Sketcher.Constraint("Equal", 15, 19),
    Sketcher.Constraint("Equal", 13, 21),
    Sketcher.Constraint("Equal", 19, 23),
    Sketcher.Constraint("Equal", 17, 25),
    Sketcher.Constraint("Equal", 23, 27),
    Sketcher.Constraint("Equal", 21, 29),
    Sketcher.Constraint("Equal", 27, 31),
    Sketcher.Constraint("Parallel", 4, 6),
    Sketcher.Constraint("Perpendicular", 6, 12),
    Sketcher.Constraint("Parallel", 12, 14),
    Sketcher.Constraint("Perpendicular", 14, 20),
    Sketcher.Constraint("Parallel", 20, 22),
    Sketcher.Constraint("Perpendicular", 22, 28),
    Sketcher.Constraint("Parallel", 28, 30),
    Sketcher.Constraint("Horizontal", 0, 2, 1, 1),
    Sketcher.Constraint("Horizontal", 16, 2, 17, 1),
    Sketcher.Constraint("Horizontal", 14, 2, 19, 1),
    Sketcher.Constraint("Horizontal", 13, 1, 20, 2),
    Sketcher.Constraint("Horizontal", 12, 2, 21, 1),
    Sketcher.Constraint("Horizontal", 10, 2, 23, 1),
    Sketcher.Constraint("Horizontal", 8, 2, 25, 1),
    Sketcher.Constraint("Horizontal", 6, 2, 27, 1),
    Sketcher.Constraint("Horizontal", 4, 2, 29, 1),
    Sketcher.Constraint("Vertical", 8, 2, 9, 1),
    Sketcher.Constraint("Vertical", 6, 2, 11, 1),
    Sketcher.Constraint("Vertical", 4, 2, 13, 1),
    Sketcher.Constraint("Vertical", 2, 2, 15, 1),
    Sketcher.Constraint("Equal", 26, 0),
    Sketcher.Constraint("Equal", 4, 6),
    Sketcher.Constraint("Radius", 1, Q("1 in")),
    Sketcher.Constraint("Radius", 5, Q("1.0000001 in")),
    Sketcher.Constraint("Diameter", 32, Q("0.95 in")),
    Sketcher.Constraint("Radius", 3, Q("0.5375 in")),
    Sketcher.Constraint("DistanceX", 0, 2, 1, 1, Q("0.05 in")),
    Sketcher.Constraint("DistanceY", -1, 1, 3, 1, 10.09234),
])
sketch5.setExpression("Constraints[92]", "Params.sketch5_radius")
sketch5.setExpression("Constraints[93]", "Params.sketch5_radius2")
sketch5.setExpression("Constraints[94]", "Params.sketch5_diameter")
pad5 = body.newObject("PartDesign::Pad", "Pad004")
pad5.Profile = sketch5
pad5.setExpression("Length", "Params.pad5_length")
pad5.Reversed = True

# Sketch on XZ plane
sketch6 = body.newObject("Sketcher::SketchObject", "Sketch005")
sketch6.AttachmentSupport = (doc.getObject("XZ_Plane"), [""])
sketch6.MapMode = "FlatFace"
sketch6.AttachmentOffset = App.Placement(V(0, 0, -0.9 * 25.4), App.Rotation())
sketch6.addGeometry([
    Part.Circle(V(0, 0, 0), V(0, 0, 1), 25.4),
    Part.Circle(V(0, 0, 0), V(0, 0, 1), 12.065),
], False)
sketch6.addConstraint([
    Sketcher.Constraint("Coincident", 0, 3, -1, 1),
    Sketcher.Constraint("Coincident", 1, 3, -1, 1),
    Sketcher.Constraint("Diameter", 0, Q("2 in")),
    Sketcher.Constraint("Diameter", 1, Q("0.95 in")),
])
sketch6.setExpression("Constraints[2]", "Params.sketch6_diameter")
sketch6.setExpression("Constraints[3]", "Params.sketch6_diameter2")
pad6 = body.newObject("PartDesign::Pad", "Pad005")
pad6.Profile = sketch6
pad6.setExpression("Length", "Params.pad6_length")
pad6.Reversed = True

# Sketch on XZ plane
sketch7 = body.newObject("Sketcher::SketchObject", "Sketch006")
sketch7.AttachmentSupport = (doc.getObject("XZ_Plane"), [""])
sketch7.MapMode = "FlatFace"
sketch7.AttachmentOffset = App.Placement(V(0, 0, -0.75 * 25.4), App.Rotation())
sketch7.addGeometry([
    Part.Circle(V(-9.525, 0, 0), V(0, 0, 1), 0.79375),
    Part.Circle(V(9.525, 0, 0), V(0, 0, 1), 0.79375),
], False)
sketch7.addConstraint([
    Sketcher.Constraint("Equal", 0, 1),
    Sketcher.Constraint("Symmetric", 0, 3, 1, 3, -1, 1),
    Sketcher.Constraint("PointOnObject", 0, 3, -1),
    Sketcher.Constraint("Diameter", 0, Q("0.0625 in")),
    Sketcher.Constraint("DistanceX", 0, 3, 1, 3, Q("0.75 in")),
])
sketch7.setExpression("Constraints[3]", "Params.sketch7_diameter")
doc.recompute()
hole = body.newObject("PartDesign::Hole", "Hole")
hole.Profile = sketch7
hole.ThreadType = "None"
hole.setExpression("Diameter", "Params.hole_diameter")
hole.DepthType = "Dimension"
hole.setExpression("Depth", "Params.hole_depth")
hole.DrillPoint = "Angled"
hole.DrillPointAngle = 118
hole.Reversed = True

doc.recompute()
